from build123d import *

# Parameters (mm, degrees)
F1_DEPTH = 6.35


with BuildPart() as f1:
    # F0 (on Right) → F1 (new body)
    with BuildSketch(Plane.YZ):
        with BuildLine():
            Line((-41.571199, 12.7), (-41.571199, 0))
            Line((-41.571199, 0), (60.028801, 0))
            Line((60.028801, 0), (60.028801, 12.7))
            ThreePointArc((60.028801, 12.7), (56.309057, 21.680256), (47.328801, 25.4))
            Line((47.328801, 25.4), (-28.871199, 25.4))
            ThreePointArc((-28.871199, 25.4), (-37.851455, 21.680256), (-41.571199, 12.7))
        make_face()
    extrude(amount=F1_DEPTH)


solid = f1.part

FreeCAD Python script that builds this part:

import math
import FreeCAD as App
import Part
import Sketcher
from FreeCAD import Vector
Q = App.Units.Quantity

doc = App.newDocument("Part")
params = doc.addObject("Spreadsheet::Sheet", "Params")
for row, (alias, value) in enumerate([
    ("sketch1_radius", "0.5 in"),
    ("sketch1_width", "4 in"),
    ("sketch1_height", "0.5 in"),
    ("pad1_length", "0.25 in"),
], start=1):
    params.set(f"A{row}", alias)
    params.set(f"B{row}", "=" + value)
    params.setAlias(f"B{row}", alias)

body = doc.addObject("PartDesign::Body", "Body")

sketch1 = body.newObject("Sketcher::SketchObject", "Sketch")
sketch1.AttachmentSupport = (doc.getObject("YZ_Plane"), [""])
sketch1.MapMode = "FlatFace"
sketch1.addGeometry(Part.LineSegment(Vector(-42, 13, 0), Vector(-42, 0, 0)), False)
sketch1.addGeometry(Part.LineSegment(Vector(-42, 0, 0), Vector(60, 0, 0)), False)
sketch1.addGeometry(Part.LineSegment(Vector(60, 0, 0), Vector(60, 13, 0)), False)
sketch1.addGeometry(Part.ArcOfCircle(Part.Circle(Vector(47, 13, 0), Vector(0, 0, 1), 13), math.radians(0), math.radians(90)), False)
sketch1.addGeometry(Part.LineSegment(Vector(47, 25, 0), Vector(-29, 25, 0)), False)
sketch1.addGeometry(Part.ArcOfCircle(Part.Circle(Vector(-29, 13, 0), Vector(0, 0, 1), 13), math.radians(90), math.radians(180)), False)
sketch1.addConstraint(Sketcher.Constraint("Coincident", 0, 2, 1, 1))
sketch1.addConstraint(Sketcher.Constraint("Coincident", 1, 2, 2, 1))
sketch1.addConstraint(Sketcher.Constraint("Tangent", 2, 2, 3, 1))
sketch1.addConstraint(Sketcher.Constraint("Tangent", 3, 2, 4, 1))
sketch1.addConstraint(Sketcher.Constraint("Tangent", 4, 2, 5, 1))
sketch1.addConstraint(Sketcher.Constraint("Tangent", 5, 2, 0, 1))
sketch1.addConstraint(Sketcher.Constraint("Vertical", 0))
sketch1.addConstraint(Sketcher.Constraint("Horizontal", 1))
sketch1.addConstraint(Sketcher.Constraint("Vertical", 2))
sketch1.addConstraint(Sketcher.Constraint("Horizontal", 4))
sketch1.addConstraint(Sketcher.Constraint("Equal", 3, 5))
sketch1.addConstraint(Sketcher.Constraint("PointOnObject", 0, 2, -1))
sketch1.addConstraint(Sketcher.Constraint("Radius", 3, Q("0.5 in")))
sketch1.addConstraint(Sketcher.Constraint("DistanceX", 1, 1, 1, 2, Q("4 in")))
sketch1.addConstraint(Sketcher.Constraint("DistanceY", 0, 2, 0, 1, Q("0.5 in")))
sketch1.addConstraint(Sketcher.Constraint("DistanceX", -1, 1, 3, 3, Q("47.328801 mm")))
sketch1.setExpression("Constraints[12]", "Params.sketch1_radius")
sketch1.setExpression("Constraints[13]", "Params.sketch1_width")
sketch1.setExpression("Constraints[14]", "Params.sketch1_height")
pad1 = body.newObject("PartDesign::Pad", "Pad")
pad1.Profile = sketch1
pad1.setExpression("Length", "Params.pad1_length")

doc.recompute()
